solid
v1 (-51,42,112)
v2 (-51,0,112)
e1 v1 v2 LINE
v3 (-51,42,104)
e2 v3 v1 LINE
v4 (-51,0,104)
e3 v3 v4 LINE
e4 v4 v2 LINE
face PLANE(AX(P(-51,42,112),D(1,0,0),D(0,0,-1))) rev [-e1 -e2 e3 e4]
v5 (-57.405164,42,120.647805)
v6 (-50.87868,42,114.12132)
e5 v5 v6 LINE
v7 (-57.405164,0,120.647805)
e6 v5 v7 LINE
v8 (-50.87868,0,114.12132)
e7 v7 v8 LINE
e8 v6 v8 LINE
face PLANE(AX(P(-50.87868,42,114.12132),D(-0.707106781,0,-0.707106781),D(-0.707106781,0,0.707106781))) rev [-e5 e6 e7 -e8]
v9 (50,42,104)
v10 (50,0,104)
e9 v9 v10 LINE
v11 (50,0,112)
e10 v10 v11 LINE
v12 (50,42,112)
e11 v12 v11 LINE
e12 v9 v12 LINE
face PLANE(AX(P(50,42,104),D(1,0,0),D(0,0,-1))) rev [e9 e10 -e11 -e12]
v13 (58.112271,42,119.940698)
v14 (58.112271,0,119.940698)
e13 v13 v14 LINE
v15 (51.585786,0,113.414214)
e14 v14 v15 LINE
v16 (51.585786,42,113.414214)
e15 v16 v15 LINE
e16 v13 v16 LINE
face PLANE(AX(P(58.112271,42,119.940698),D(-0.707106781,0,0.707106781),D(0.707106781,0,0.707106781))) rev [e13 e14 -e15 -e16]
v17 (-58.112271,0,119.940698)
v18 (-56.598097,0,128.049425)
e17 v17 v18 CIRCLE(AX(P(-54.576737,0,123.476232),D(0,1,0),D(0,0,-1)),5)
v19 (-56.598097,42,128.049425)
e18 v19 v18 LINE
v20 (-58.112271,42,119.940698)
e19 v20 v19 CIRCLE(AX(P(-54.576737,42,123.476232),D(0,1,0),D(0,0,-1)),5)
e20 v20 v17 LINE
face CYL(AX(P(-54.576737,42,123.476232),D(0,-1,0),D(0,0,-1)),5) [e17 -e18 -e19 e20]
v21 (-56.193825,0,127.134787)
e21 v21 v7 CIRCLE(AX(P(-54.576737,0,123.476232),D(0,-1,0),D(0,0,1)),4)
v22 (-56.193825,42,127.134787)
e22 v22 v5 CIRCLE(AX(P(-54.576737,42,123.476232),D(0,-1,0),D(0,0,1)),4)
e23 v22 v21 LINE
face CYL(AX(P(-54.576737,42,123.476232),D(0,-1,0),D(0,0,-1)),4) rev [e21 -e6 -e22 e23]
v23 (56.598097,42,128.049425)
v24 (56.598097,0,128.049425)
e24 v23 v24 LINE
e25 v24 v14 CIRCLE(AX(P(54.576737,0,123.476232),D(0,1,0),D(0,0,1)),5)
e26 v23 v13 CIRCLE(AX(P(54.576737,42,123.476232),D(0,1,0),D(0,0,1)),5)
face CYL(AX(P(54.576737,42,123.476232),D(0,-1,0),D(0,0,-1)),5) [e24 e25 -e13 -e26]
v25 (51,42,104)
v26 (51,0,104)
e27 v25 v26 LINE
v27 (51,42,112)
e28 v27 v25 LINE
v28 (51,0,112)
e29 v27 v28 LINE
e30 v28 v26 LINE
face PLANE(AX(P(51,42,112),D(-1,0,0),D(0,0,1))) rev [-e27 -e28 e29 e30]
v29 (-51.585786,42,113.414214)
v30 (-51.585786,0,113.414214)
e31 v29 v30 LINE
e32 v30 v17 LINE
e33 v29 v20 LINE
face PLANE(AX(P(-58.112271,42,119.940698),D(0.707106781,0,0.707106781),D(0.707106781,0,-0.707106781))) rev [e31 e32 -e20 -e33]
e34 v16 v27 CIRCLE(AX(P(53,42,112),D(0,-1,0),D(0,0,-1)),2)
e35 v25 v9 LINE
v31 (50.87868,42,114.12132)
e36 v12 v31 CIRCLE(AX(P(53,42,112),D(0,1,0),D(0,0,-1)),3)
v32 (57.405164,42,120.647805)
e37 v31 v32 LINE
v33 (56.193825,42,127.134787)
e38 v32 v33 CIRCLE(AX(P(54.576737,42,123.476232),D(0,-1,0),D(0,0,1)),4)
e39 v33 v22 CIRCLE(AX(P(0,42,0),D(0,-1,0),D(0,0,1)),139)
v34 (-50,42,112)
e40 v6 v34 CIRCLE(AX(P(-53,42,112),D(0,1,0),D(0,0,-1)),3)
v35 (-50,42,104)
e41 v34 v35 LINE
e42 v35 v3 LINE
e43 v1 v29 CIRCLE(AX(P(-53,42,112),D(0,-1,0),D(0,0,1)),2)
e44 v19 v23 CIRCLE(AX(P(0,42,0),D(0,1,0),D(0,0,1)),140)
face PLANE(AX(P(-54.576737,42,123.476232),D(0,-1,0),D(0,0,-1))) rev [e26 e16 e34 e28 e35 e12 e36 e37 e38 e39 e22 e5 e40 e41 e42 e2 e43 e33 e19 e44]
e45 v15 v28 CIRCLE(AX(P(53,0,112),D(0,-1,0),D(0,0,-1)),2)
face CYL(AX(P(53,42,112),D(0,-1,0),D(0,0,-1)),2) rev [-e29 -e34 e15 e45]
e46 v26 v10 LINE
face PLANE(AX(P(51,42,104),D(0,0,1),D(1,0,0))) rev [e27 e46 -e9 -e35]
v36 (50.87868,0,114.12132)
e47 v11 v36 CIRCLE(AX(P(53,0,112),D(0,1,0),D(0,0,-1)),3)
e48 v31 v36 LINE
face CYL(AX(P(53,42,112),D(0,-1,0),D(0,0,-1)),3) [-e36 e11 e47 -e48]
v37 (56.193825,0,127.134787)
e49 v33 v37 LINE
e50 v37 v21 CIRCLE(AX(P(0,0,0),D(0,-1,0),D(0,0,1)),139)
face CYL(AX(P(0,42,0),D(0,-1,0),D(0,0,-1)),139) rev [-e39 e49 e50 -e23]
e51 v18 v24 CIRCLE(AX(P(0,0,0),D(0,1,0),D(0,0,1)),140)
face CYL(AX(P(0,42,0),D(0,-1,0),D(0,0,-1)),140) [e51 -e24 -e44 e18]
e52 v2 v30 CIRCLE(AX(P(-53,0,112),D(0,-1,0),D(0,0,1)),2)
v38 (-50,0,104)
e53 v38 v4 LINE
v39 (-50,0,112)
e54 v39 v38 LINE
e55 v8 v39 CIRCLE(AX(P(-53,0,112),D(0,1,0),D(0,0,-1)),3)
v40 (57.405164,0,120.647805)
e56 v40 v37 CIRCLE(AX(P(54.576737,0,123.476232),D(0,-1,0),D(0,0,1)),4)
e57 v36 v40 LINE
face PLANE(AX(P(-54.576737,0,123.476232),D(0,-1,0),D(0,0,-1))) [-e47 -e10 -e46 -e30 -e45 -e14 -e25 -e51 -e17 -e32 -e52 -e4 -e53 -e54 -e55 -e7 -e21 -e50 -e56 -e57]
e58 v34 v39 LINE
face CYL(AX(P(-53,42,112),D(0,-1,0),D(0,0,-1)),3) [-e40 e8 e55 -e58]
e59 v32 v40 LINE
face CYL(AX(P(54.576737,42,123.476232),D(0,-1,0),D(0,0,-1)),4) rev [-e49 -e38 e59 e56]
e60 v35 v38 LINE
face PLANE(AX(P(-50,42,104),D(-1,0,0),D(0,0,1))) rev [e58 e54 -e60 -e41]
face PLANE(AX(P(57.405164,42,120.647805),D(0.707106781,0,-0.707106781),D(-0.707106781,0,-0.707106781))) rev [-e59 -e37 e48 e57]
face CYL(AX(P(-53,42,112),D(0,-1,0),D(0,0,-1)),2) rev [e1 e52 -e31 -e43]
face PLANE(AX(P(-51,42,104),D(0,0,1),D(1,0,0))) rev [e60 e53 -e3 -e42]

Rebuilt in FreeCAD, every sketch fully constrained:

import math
import FreeCAD as App
import Part
import Sketcher

doc = App.newDocument("Part")
body = doc.addObject("PartDesign::Body", "Body")

sketch1 = body.newObject("Sketcher::SketchObject", "Sketch")
sketch1.AttachmentSupport = (doc.getObject("XZ_Plane"), [""])
sketch1.MapMode = "FlatFace"
sketch1.addGeometry([
    Part.LineSegment(App.Vector(-51.6, 113.4, 0), App.Vector(-58.1, 119.9, 0)),
    Part.ArcOfCircle(Part.Circle(App.Vector(-54.6, 123.5, 0), App.Vector(0, 0, 1), 5), math.radians(114), math.radians(225)),
    Part.ArcOfCircle(Part.Circle(App.Vector(0, 0, 0), App.Vector(0, 0, 1), 140), math.radians(66), math.radians(114)),
    Part.ArcOfCircle(Part.Circle(App.Vector(54.6, 123.5, 0), App.Vector(0, 0, 1), 5), math.radians(-45), math.radians(66)),
    Part.LineSegment(App.Vector(58.1, 119.9, 0), App.Vector(51.6, 113.4, 0)),
    Part.ArcOfCircle(Part.Circle(App.Vector(53, 112, 0), App.Vector(0, 0, 1), 2), math.radians(135), math.radians(180)),
    Part.LineSegment(App.Vector(51, 112, 0), App.Vector(51, 104, 0)),
    Part.LineSegment(App.Vector(51, 104, 0), App.Vector(50, 104, 0)),
    Part.LineSegment(App.Vector(50, 104, 0), App.Vector(50, 112, 0)),
    Part.ArcOfCircle(Part.Circle(App.Vector(53, 112, 0), App.Vector(0, 0, 1), 3), math.radians(135), math.radians(180)),
    Part.LineSegment(App.Vector(50.9, 114.1, 0), App.Vector(57.4, 120.6, 0)),
    Part.ArcOfCircle(Part.Circle(App.Vector(54.6, 123.5, 0), App.Vector(0, 0, 1), 4), math.radians(-45), math.radians(66)),
    Part.ArcOfCircle(Part.Circle(App.Vector(0, 0, 0), App.Vector(0, 0, 1), 139), math.radians(66), math.radians(114)),
    Part.ArcOfCircle(Part.Circle(App.Vector(-54.6, 123.5, 0), App.Vector(0, 0, 1), 4), math.radians(114), math.radians(225)),
    Part.LineSegment(App.Vector(-57.4, 120.6, 0), App.Vector(-50.9, 114.1, 0)),
    Part.ArcOfCircle(Part.Circle(App.Vector(-53, 112, 0), App.Vector(0, 0, 1), 3), math.radians(0), math.radians(45)),
    Part.LineSegment(App.Vector(-50, 112, 0), App.Vector(-50, 104, 0)),
    Part.LineSegment(App.Vector(-50, 104, 0), App.Vector(-51, 104, 0)),
    Part.LineSegment(App.Vector(-51, 104, 0), App.Vector(-51, 112, 0)),
    Part.ArcOfCircle(Part.Circle(App.Vector(-53, 112, 0), App.Vector(0, 0, 1), 2), math.radians(0), math.radians(45)),
], False)
sketch1.addConstraint([
    Sketcher.Constraint("Tangent", 0, 2, 1, 2),
    Sketcher.Constraint("Tangent", 1, 1, 2, 2),
    Sketcher.Constraint("Tangent", 2, 1, 3, 2),
    Sketcher.Constraint("Tangent", 3, 1, 4, 1),
    Sketcher.Constraint("Tangent", 4, 2, 5, 1),
    Sketcher.Constraint("Tangent", 5, 2, 6, 1),
    Sketcher.Constraint("Coincident", 6, 2, 7, 1),
    Sketcher.Constraint("Coincident", 7, 2, 8, 1),
    Sketcher.Constraint("Tangent", 8, 2, 9, 2),
    Sketcher.Constraint("Tangent", 9, 1, 10, 1),
    Sketcher.Constraint("Tangent", 10, 2, 11, 1),
    Sketcher.Constraint("Tangent", 11, 2, 12, 1),
    Sketcher.Constraint("Tangent", 12, 2, 13, 1),
    Sketcher.Constraint("Tangent", 13, 2, 14, 1),
    Sketcher.Constraint("Tangent", 14, 2, 15, 2),
    Sketcher.Constraint("Tangent", 15, 1, 16, 1),
    Sketcher.Constraint("Coincident", 16, 2, 17, 1),
    Sketcher.Constraint("Coincident", 17, 2, 18, 1),
    Sketcher.Constraint("Tangent", 18, 2, 19, 1),
    Sketcher.Constraint("Tangent", 19, 2, 0, 1),
    Sketcher.Constraint("Vertical", 6),
    Sketcher.Constraint("Horizontal", 7),
    Sketcher.Constraint("Vertical", 8),
    Sketcher.Constraint("Vertical", 16),
    Sketcher.Constraint("Horizontal", 17),
    Sketcher.Constraint("Vertical", 18),
    Sketcher.Constraint("Coincident", 2, 3, -1, 1),
    Sketcher.Constraint("Coincident", 12, 3, -1, 1),
    Sketcher.Constraint("Coincident", 9, 3, 5, 3),
    Sketcher.Constraint("Coincident", 11, 3, 3, 3),
    Sketcher.Constraint("Coincident", 13, 3, 1, 3),
    Sketcher.Constraint("Coincident", 19, 3, 15, 3),
    Sketcher.Constraint("Equal", 1, 3),
    Sketcher.Constraint("Equal", 9, 15),
    Sketcher.Constraint("Equal", 5, 19),
    Sketcher.Constraint("Symmetric", 5, 3, 15, 3, -2),
    Sketcher.Constraint("Perpendicular", 0, 4),
    Sketcher.Constraint("Parallel", 4, 10),
    Sketcher.Constraint("Horizontal", 1, 3, 3, 3),
    Sketcher.Constraint("Horizontal", 7, 2, 16, 2),
    Sketcher.Constraint("Radius", 1, 5.0),
    Sketcher.Constraint("Radius", 2, 140.0),
    Sketcher.Constraint("Radius", 5, 2.0),
    Sketcher.Constraint("Radius", 9, 3.0),
    Sketcher.Constraint("DistanceY", 6, 2, 6, 1, 8.0),
    Sketcher.Constraint("DistanceX", -1, 1, 5, 3, 53.0),
    Sketcher.Constraint("DistanceY", -1, 1, 5, 3, 112.0),
])
pad1 = body.newObject("PartDesign::Pad", "Pad")
pad1.Profile = sketch1
pad1.Length = 42
pad1.Reversed = True

doc.recompute()
